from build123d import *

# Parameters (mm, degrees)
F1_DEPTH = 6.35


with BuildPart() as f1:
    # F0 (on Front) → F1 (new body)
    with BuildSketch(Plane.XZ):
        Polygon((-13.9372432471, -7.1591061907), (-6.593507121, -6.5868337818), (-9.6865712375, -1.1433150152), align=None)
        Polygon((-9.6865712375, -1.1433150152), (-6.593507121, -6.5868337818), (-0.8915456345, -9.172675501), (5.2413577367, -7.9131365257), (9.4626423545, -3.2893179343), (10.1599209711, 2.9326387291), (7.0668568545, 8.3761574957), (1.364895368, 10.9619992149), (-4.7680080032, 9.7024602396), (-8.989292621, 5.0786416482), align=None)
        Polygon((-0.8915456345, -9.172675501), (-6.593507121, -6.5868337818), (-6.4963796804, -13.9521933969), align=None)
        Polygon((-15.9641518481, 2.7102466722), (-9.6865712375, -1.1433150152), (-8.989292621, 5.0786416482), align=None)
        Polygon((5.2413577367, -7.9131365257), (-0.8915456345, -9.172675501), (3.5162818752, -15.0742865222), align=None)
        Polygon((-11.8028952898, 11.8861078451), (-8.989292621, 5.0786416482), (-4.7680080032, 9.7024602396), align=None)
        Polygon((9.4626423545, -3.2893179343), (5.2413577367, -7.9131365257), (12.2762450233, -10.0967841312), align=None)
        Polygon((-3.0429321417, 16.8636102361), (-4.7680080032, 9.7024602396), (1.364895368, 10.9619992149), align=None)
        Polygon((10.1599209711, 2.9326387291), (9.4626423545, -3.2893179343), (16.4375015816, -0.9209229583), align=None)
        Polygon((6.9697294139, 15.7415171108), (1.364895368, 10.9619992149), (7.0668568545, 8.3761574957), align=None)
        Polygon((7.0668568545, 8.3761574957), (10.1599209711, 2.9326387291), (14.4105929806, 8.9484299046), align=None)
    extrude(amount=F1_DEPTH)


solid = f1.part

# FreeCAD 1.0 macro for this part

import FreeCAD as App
import Part
import Sketcher
from FreeCAD import Vector
Q = App.Units.Quantity

doc = App.newDocument("Part")
params = doc.addObject("Spreadsheet::Sheet", "Params")
for row, (alias, value) in enumerate([
    ("sketch1_length", "0.29 in"),
    ("pad1_length", "0.25 in"),
], start=1):
    params.set(f"A{row}", alias)
    params.set(f"B{row}", "=" + value)
    params.setAlias(f"B{row}", alias)

body = doc.addObject("PartDesign::Body", "Body")

# Sketch on XZ plane
sketch1 = body.newObject("Sketcher::SketchObject", "Sketch")
sketch1.AttachmentSupport = (doc.getObject("XZ_Plane"), [""])
sketch1.MapMode = "FlatFace"
sketch1.addGeometry(Part.LineSegment(Vector(-14, -7, 0), Vector(-7, -7, 0)), False)
sketch1.addGeometry(Part.LineSegment(Vector(-7, -7, 0), Vector(-6, -14, 0)), False)
sketch1.addGeometry(Part.LineSegment(Vector(-6, -14, 0), Vector(-1, -9, 0)), False)
sketch1.addGeometry(Part.LineSegment(Vector(-1, -9, 0), Vector(4, -15, 0)), False)
sketch1.addGeometry(Part.LineSegment(Vector(4, -15, 0), Vector(5, -8, 0)), False)
sketch1.addGeometry(Part.LineSegment(Vector(5, -8, 0), Vector(12, -10, 0)), False)
sketch1.addGeometry(Part.LineSegment(Vector(12, -10, 0), Vector(9, -3, 0)), False)
sketch1.addGeometry(Part.LineSegment(Vector(9, -3, 0), Vector(16, -1, 0)), False)
sketch1.addGeometry(Part.LineSegment(Vector(16, -1, 0), Vector(10, 3, 0)), False)
sketch1.addGeometry(Part.LineSegment(Vector(10, 3, 0), Vector(14, 9, 0)), False)
sketch1.addGeometry(Part.LineSegment(Vector(14, 9, 0), Vector(7, 8, 0)), False)
sketch1.addGeometry(Part.LineSegment(Vector(7, 8, 0), Vector(7, 16, 0)), False)
sketch1.addGeometry(Part.LineSegment(Vector(7, 16, 0), Vector(1, 11, 0)), False)
sketch1.addGeometry(Part.LineSegment(Vector(1, 11, 0), Vector(-3, 17, 0)), False)
sketch1.addGeometry(Part.LineSegment(Vector(-3, 17, 0), Vector(-5, 10, 0)), False)
sketch1.addGeometry(Part.LineSegment(Vector(-5, 10, 0), Vector(-12, 12, 0)), False)
sketch1.addGeometry(Part.LineSegment(Vector(-12, 12, 0), Vector(-9, 5, 0)), False)
sketch1.addGeometry(Part.LineSegment(Vector(-9, 5, 0), Vector(-16, 3, 0)), False)
sketch1.addGeometry(Part.LineSegment(Vector(-16, 3, 0), Vector(-10, -1, 0)), False)
sketch1.addGeometry(Part.LineSegment(Vector(-10, -1, 0), Vector(-14, -7, 0)), False)
sketch1.addConstraint(Sketcher.Constraint("Coincident", 0, 2, 1, 1))
sketch1.addConstraint(Sketcher.Constraint("Coincident", 1, 2, 2, 1))
sketch1.addConstraint(Sketcher.Constraint("Coincident", 2, 2, 3, 1))
sketch1.addConstraint(Sketcher.Constraint("Coincident", 3, 2, 4, 1))
sketch1.addConstraint(Sketcher.Constraint("Coincident", 4, 2, 5, 1))
sketch1.addConstraint(Sketcher.Constraint("Coincident", 5, 2, 6, 1))
sketch1.addConstraint(Sketcher.Constraint("Coincident", 6, 2, 7, 1))
sketch1.addConstraint(Sketcher.Constraint("Coincident", 7, 2, 8, 1))
sketch1.addConstraint(Sketcher.Constraint("Coincident", 8, 2, 9, 1))
sketch1.addConstraint(Sketcher.Constraint("Coincident", 9, 2, 10, 1))
sketch1.addConstraint(Sketcher.Constraint("Coincident", 10, 2, 11, 1))
sketch1.addConstraint(Sketcher.Constraint("Coincident", 11, 2, 12, 1))
sketch1.addConstraint(Sketcher.Constraint("Coincident", 12, 2, 13, 1))
sketch1.addConstraint(Sketcher.Constraint("Coincident", 13, 2, 14, 1))
sketch1.addConstraint(Sketcher.Constraint("Coincident", 14, 2, 15, 1))
sketch1.addConstraint(Sketcher.Constraint("Coincident", 15, 2, 16, 1))
sketch1.addConstraint(Sketcher.Constraint("Coincident", 16, 2, 17, 1))
sketch1.addConstraint(Sketcher.Constraint("Coincident", 17, 2, 18, 1))
sketch1.addConstraint(Sketcher.Constraint("Coincident", 18, 2, 19, 1))
sketch1.addConstraint(Sketcher.Constraint("Coincident", 19, 2, 0, 1))
sketch1.addConstraint(Sketcher.Constraint("Parallel", 0, 10))
sketch1.addConstraint(Sketcher.Constraint("Parallel", 1, 11))
sketch1.addConstraint(Sketcher.Constraint("Parallel", 2, 12))
sketch1.addConstraint(Sketcher.Constraint("Parallel", 3, 13))
sketch1.addConstraint(Sketcher.Constraint("Parallel", 4, 14))
sketch1.addConstraint(Sketcher.Constraint("Parallel", 5, 15))
sketch1.addConstraint(Sketcher.Constraint("Parallel", 6, 16))
sketch1.addConstraint(Sketcher.Constraint("Parallel", 7, 17))
sketch1.addConstraint(Sketcher.Constraint("Parallel", 8, 18))
sketch1.addConstraint(Sketcher.Constraint("Parallel", 9, 19))
sketch1.addConstraint(Sketcher.Constraint("Equal", 0, 1))
sketch1.addConstraint(Sketcher.Constraint("Equal", 1, 2))
sketch1.addConstraint(Sketcher.Constraint("Equal", 2, 3))
sketch1.addConstraint(Sketcher.Constraint("Equal", 3, 4))
sketch1.addConstraint(Sketcher.Constraint("Equal", 4, 5))
sketch1.addConstraint(Sketcher.Constraint("Equal", 5, 6))
sketch1.addConstraint(Sketcher.Constraint("Equal", 6, 7))
sketch1.addConstraint(Sketcher.Constraint("Equal", 7, 8))
sketch1.addConstraint(Sketcher.Constraint("Equal", 8, 9))
sketch1.addConstraint(Sketcher.Constraint("Equal", 9, 10))
sketch1.addConstraint(Sketcher.Constraint("Equal", 10, 11))
sketch1.addConstraint(Sketcher.Constraint("Equal", 11, 12))
sketch1.addConstraint(Sketcher.Constraint("Equal", 12, 13))
sketch1.addConstraint(Sketcher.Constraint("Equal", 13, 14))
sketch1.addConstraint(Sketcher.Constraint("Equal", 14, 15))
sketch1.addConstraint(Sketcher.Constraint("Equal", 15, 16))
sketch1.addConstraint(Sketcher.Constraint("Equal", 16, 17))
sketch1.addConstraint(Sketcher.Constraint("Distance", 0, Q("0.29 in")))
sketch1.addConstraint(Sketcher.Constraint("DistanceX", -1, 1, 7, 2, Q("16.437502 mm")))
sketch1.addConstraint(Sketcher.Constraint("DistanceY", -1, 1, 12, 2, Q("10.961999 mm")))
sketch1.addConstraint(Sketcher.Constraint("DistanceX", 4, 2, 10, 2, Q("1.825499 mm")))
sketch1.addConstraint(Sketcher.Constraint("DistanceX", 1, 2, -1, 1, Q("6.49638 mm")))
sketch1.addConstraint(Sketcher.Constraint("DistanceX", -1, 1, 3, 2, Q("3.516282 mm")))
sketch1.addConstraint(Sketcher.Constraint("DistanceX", -1, 1, 8, 2, Q("10.159921 mm")))
sketch1.addConstraint(Sketcher.Constraint("DistanceY", -1, 1, 8, 2, Q("2.932639 mm")))
sketch1.addConstraint(Sketcher.Constraint("DistanceY", -1, 1, 9, 2, Q("8.94843 mm")))
sketch1.addConstraint(Sketcher.Constraint("DistanceX", -1, 1, 11, 2, Q("6.969729 mm")))
sketch1.addConstraint(Sketcher.Constraint("DistanceY", -1, 1, 13, 2, Q("16.86361 mm")))
sketch1.addConstraint(Sketcher.Constraint("DistanceY", -1, 1, 16, 2, Q("5.078642 mm")))
sketch1.addConstraint(Sketcher.Constraint("DistanceX", 2, 2, 5, 2, Q("13.167791 mm")))
sketch1.setExpression("Constraints[47]", "Params.sketch1_length")
pad1 = body.newObject("PartDesign::Pad", "Pad")
pad1.Profile = sketch1
pad1.setExpression("Length", "Params.pad1_length")

doc.recompute()
